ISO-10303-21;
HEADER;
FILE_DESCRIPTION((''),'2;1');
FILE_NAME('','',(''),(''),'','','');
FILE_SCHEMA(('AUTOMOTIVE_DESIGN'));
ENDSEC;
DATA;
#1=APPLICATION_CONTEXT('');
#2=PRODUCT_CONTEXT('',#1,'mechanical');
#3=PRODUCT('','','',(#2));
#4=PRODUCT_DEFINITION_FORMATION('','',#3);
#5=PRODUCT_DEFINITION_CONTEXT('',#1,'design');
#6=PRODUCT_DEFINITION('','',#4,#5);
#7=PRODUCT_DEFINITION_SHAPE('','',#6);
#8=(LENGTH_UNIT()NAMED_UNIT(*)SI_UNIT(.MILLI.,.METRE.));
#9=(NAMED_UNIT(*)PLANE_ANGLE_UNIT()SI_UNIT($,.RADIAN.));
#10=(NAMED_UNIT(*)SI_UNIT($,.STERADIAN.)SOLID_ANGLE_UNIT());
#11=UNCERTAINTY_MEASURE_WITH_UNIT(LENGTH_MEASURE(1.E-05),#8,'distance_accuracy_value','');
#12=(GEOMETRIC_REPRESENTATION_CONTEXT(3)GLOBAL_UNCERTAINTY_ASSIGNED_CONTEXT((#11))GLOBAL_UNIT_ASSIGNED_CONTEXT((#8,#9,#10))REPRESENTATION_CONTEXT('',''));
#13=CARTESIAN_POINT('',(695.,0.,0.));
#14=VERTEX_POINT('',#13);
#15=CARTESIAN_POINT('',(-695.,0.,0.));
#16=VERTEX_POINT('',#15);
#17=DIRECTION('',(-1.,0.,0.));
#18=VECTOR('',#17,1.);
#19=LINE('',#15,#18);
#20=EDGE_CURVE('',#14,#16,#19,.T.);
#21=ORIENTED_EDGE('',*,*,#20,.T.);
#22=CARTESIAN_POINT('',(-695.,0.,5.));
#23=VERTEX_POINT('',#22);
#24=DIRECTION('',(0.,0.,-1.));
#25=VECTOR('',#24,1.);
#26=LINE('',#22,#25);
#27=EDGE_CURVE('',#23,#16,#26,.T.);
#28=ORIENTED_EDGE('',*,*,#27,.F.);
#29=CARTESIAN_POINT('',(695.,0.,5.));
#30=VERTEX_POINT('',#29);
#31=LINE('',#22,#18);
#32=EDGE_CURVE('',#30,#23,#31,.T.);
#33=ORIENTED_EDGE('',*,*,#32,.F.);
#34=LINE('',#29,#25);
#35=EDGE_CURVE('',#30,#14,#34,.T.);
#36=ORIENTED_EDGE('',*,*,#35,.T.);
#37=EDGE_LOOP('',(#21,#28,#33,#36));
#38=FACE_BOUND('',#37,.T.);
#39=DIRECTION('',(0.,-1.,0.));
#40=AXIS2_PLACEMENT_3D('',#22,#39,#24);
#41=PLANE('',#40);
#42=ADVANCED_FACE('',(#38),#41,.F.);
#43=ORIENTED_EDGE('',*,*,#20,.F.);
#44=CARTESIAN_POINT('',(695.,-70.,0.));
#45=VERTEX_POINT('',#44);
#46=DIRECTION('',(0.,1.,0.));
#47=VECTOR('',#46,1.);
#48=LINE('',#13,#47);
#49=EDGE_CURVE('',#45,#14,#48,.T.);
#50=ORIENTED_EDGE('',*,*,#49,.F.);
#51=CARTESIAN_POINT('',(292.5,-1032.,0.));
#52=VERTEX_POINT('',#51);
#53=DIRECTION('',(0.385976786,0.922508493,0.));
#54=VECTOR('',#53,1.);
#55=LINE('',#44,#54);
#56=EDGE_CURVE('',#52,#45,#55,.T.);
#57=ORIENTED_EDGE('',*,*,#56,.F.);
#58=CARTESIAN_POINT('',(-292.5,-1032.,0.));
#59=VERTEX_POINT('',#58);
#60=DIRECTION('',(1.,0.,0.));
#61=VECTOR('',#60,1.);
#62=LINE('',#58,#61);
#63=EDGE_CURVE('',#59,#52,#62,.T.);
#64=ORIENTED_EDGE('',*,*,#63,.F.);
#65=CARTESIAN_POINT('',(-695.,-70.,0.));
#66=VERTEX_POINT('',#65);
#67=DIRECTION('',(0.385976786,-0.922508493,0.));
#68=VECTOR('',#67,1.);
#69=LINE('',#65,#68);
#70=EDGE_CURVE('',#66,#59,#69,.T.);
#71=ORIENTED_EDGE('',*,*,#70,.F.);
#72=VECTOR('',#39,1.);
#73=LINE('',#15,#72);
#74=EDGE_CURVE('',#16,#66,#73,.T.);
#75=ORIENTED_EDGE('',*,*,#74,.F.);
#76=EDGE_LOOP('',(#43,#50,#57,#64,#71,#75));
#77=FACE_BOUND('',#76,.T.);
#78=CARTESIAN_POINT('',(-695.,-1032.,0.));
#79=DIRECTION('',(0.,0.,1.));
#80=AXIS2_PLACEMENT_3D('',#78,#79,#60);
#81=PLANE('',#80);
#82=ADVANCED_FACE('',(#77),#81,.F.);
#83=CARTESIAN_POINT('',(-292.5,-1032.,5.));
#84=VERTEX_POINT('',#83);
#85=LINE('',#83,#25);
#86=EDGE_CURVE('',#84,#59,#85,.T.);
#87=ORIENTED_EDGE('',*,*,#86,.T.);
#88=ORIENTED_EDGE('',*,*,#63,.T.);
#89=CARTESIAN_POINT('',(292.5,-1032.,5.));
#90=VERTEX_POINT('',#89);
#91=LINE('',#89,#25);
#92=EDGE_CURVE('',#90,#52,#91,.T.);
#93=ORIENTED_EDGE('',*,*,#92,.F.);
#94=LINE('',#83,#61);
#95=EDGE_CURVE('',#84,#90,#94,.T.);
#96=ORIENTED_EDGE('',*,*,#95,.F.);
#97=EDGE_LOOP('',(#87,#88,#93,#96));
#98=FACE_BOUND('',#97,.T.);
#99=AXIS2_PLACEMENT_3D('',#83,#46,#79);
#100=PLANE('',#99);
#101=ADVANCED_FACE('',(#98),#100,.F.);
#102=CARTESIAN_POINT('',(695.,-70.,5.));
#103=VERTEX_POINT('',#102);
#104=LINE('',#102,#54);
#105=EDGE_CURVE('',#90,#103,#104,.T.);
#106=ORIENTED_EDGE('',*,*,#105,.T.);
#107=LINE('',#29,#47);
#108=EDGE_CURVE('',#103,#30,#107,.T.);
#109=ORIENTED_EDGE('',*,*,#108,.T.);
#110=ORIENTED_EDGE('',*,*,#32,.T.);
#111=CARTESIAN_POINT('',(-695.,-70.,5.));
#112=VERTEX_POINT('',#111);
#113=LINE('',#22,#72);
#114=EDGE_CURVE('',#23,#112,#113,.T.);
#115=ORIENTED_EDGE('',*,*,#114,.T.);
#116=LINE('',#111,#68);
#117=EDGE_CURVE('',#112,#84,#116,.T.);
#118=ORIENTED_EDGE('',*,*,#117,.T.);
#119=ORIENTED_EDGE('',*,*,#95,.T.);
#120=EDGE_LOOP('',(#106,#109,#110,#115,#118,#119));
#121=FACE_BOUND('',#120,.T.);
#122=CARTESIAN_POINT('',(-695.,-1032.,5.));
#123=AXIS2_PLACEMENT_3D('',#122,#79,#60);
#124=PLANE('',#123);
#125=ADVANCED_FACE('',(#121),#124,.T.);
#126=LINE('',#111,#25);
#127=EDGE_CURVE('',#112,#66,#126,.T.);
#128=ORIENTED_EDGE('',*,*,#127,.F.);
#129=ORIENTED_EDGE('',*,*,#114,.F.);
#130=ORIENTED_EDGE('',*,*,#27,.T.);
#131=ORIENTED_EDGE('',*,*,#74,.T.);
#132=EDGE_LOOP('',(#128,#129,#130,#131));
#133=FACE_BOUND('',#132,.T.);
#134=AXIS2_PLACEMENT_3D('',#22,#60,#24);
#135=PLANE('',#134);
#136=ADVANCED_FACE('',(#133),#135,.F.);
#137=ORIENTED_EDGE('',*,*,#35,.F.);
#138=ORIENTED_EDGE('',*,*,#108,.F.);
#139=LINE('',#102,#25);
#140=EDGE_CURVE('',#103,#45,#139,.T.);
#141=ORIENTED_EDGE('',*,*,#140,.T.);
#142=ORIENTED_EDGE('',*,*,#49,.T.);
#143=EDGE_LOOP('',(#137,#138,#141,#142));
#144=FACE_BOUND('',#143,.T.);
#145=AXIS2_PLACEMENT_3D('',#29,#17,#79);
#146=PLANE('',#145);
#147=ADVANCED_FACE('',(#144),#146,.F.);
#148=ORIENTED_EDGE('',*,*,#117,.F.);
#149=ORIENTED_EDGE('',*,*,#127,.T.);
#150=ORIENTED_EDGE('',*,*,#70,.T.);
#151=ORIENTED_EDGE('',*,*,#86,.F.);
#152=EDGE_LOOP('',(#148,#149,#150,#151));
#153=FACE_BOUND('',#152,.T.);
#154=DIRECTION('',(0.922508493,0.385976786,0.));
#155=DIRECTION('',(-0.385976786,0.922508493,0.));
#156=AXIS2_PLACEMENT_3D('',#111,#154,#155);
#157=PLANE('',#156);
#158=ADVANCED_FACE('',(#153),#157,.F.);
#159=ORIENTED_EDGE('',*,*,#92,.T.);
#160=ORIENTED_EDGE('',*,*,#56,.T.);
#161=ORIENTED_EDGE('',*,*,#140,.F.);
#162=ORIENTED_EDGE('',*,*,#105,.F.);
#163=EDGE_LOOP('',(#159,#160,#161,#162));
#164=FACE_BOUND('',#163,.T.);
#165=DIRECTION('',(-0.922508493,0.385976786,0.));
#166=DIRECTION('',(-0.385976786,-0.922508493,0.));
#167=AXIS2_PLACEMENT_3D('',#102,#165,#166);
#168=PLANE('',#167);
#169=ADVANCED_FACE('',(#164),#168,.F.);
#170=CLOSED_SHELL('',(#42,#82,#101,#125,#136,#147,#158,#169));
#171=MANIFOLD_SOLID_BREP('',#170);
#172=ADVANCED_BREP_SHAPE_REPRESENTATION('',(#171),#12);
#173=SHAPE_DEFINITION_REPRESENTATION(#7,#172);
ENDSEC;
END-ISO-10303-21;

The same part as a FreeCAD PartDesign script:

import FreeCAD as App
import Part
import Sketcher
from FreeCAD import Vector

doc = App.newDocument("Part")
body = doc.addObject("PartDesign::Body", "Body")

# Sketch on XY plane
sketch1 = body.newObject("Sketcher::SketchObject", "Sketch")
sketch1.AttachmentSupport = (doc.getObject("XY_Plane"), [""])
sketch1.MapMode = "FlatFace"
sketch1.addGeometry([
    Part.LineSegment(Vector(695, 0, 0), Vector(-695, 0, 0)),  # 0
    Part.LineSegment(Vector(-695, 0, 0), Vector(-695, -70, 0)),  # 1
    Part.LineSegment(Vector(-695, -70, 0), Vector(-292, -1032, 0)),  # 2
    Part.LineSegment(Vector(-292, -1032, 0), Vector(292, -1032, 0)),  # 3
    Part.LineSegment(Vector(292, -1032, 0), Vector(695, -70, 0)),  # 4
    Part.LineSegment(Vector(695, -70, 0), Vector(695, 0, 0)),  # 5
], False)
sketch1.addConstraint([
    Sketcher.Constraint("Coincident", 0, 2, 1, 1),
    Sketcher.Constraint("Coincident", 1, 2, 2, 1),
    Sketcher.Constraint("Coincident", 2, 2, 3, 1),
    Sketcher.Constraint("Coincident", 3, 2, 4, 1),
    Sketcher.Constraint("Coincident", 4, 2, 5, 1),
    Sketcher.Constraint("Coincident", 5, 2, 0, 1),
    Sketcher.Constraint("Horizontal", 0),
    Sketcher.Constraint("Vertical", 1),
    Sketcher.Constraint("Horizontal", 3),
    Sketcher.Constraint("Vertical", 5),
    Sketcher.Constraint("Symmetric", 0, 2, 5, 2, -1, 1),
    Sketcher.Constraint("Horizontal", 1, 2, 4, 2),
    Sketcher.Constraint("Equal", 2, 4),
    Sketcher.Constraint("DistanceX", 0, 2, 0, 1, 1390.0),
    Sketcher.Constraint("DistanceX", 3, 1, 3, 2, 585.0),
    Sketcher.Constraint("DistanceY", 1, 2, 1, 1, 70.0),
    Sketcher.Constraint("DistanceY", 2, 2, -1, 1, 1032.0),
])
pad1 = body.newObject("PartDesign::Pad", "Pad")
pad1.Profile = sketch1
pad1.Length = 5

doc.recompute()
